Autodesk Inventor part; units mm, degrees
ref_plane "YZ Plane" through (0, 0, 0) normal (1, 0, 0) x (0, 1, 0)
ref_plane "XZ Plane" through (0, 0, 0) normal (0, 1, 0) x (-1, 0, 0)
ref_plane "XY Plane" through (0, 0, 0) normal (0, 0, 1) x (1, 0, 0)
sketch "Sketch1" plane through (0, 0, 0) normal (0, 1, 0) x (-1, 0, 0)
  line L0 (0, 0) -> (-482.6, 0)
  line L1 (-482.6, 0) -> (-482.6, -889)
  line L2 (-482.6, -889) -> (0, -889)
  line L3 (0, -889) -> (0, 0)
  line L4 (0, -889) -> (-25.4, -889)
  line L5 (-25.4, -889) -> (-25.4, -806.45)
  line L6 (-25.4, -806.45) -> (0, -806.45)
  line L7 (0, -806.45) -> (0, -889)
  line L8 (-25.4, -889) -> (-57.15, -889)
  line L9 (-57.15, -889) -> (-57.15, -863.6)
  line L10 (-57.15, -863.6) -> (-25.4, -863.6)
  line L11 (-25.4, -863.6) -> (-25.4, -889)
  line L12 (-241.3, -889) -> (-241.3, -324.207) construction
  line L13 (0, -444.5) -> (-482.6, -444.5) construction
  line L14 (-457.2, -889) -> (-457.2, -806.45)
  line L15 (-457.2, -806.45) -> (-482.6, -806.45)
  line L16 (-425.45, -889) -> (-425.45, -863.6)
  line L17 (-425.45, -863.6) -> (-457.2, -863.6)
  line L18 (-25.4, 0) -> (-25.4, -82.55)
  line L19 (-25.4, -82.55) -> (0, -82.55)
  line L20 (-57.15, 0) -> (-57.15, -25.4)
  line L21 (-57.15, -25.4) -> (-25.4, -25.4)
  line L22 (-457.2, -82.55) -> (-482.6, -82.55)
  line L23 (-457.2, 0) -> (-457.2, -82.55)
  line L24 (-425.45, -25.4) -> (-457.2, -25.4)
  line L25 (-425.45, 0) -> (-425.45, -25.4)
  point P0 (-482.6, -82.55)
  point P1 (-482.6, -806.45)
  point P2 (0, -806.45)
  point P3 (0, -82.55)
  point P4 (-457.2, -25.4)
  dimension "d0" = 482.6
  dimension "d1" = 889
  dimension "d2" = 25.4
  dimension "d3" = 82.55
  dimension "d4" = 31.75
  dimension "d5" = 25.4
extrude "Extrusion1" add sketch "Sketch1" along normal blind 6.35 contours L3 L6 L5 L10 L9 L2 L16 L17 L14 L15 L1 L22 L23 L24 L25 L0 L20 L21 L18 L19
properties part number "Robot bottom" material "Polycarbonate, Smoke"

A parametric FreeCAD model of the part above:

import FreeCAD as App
import Part
import Sketcher
Q = App.Units.Quantity


def add_polygon(sketch, points):
    """Adds a closed chain of lines whose ends are joined by coincident constraints."""
    first, n = sketch.GeometryCount, len(points)
    for a, b in zip(points, points[1:] + points[:1]):
        sketch.addGeometry(Part.LineSegment(App.Vector(*a, 0), App.Vector(*b, 0)), False)
    for i in range(n):
        sketch.addConstraint(Sketcher.Constraint("Coincident", first + i, 2, first + (i + 1) % n, 1))

doc = App.newDocument("Part")
params = doc.addObject("Spreadsheet::Sheet", "Params")
for row, (alias, value) in enumerate([
    ("sketch1_width", "1 in"),
    ("sketch1_width2", "1.25 in"),
    ("pad1_length", "0.25 in"),
], start=1):
    params.set(f"A{row}", alias)
    params.set(f"B{row}", "=" + value)
    params.setAlias(f"B{row}", alias)

body = doc.addObject("PartDesign::Body", "Body")

# Sketch on XZ plane
sketch1 = body.newObject("Sketcher::SketchObject", "Sketch")
sketch1.AttachmentSupport = (doc.getObject("XZ_Plane"), [""])
sketch1.MapMode = "FlatFace"
add_polygon(sketch1, [(0, -806), (0, -83), (25, -83), (25, -25), (57, -25), (57, 0), (425, 0), (425, -25), (457, -25), (457, -83), (483, -83), (483, -806), (457, -806), (457, -864), (425, -864), (425, -889), (57, -889), (57, -864), (25, -864), (25, -806)])  # lines 0-19
sketch1.addConstraint([
    Sketcher.Constraint("Vertical", 0),
    Sketcher.Constraint("Horizontal", 1),
    Sketcher.Constraint("Vertical", 2),
    Sketcher.Constraint("Horizontal", 3),
    Sketcher.Constraint("Vertical", 4),
    Sketcher.Constraint("Horizontal", 5),
    Sketcher.Constraint("Vertical", 6),
    Sketcher.Constraint("Horizontal", 7),
    Sketcher.Constraint("Vertical", 8),
    Sketcher.Constraint("Horizontal", 9),
    Sketcher.Constraint("Vertical", 10),
    Sketcher.Constraint("Horizontal", 11),
    Sketcher.Constraint("Vertical", 12),
    Sketcher.Constraint("Horizontal", 13),
    Sketcher.Constraint("Vertical", 14),
    Sketcher.Constraint("Horizontal", 15),
    Sketcher.Constraint("Vertical", 16),
    Sketcher.Constraint("Horizontal", 17),
    Sketcher.Constraint("Vertical", 18),
    Sketcher.Constraint("Horizontal", 19),
    Sketcher.Constraint("PointOnObject", 0, 2, -2),
    Sketcher.Constraint("PointOnObject", 4, 2, -1),
    Sketcher.Constraint("Horizontal", 3, 2, 6, 2),
    Sketcher.Constraint("Horizontal", 1, 2, 8, 2),
    Sketcher.Constraint("Horizontal", 13, 2, 16, 2),
    Sketcher.Constraint("Horizontal", 11, 2, 18, 2),
    Sketcher.Constraint("Vertical", 8, 2, 11, 2),
    Sketcher.Constraint("Vertical", 6, 2, 13, 2),
    Sketcher.Constraint("Vertical", 4, 2, 15, 2),
    Sketcher.Constraint("Vertical", 2, 2, 17, 2),
    Sketcher.Constraint("Equal", 3, 7),
    Sketcher.Constraint("Equal", 1, 9),
    Sketcher.Constraint("Equal", 19, 4),
    Sketcher.Constraint("Equal", 8, 12),
    Sketcher.Constraint("Equal", 6, 14),
    Sketcher.Constraint("DistanceX", 1, 1, 1, 2, Q("1 in")),
    Sketcher.Constraint("DistanceX", -1, 1, 9, 2, Q("19 in")),
    Sketcher.Constraint("DistanceY", 14, 2, -1, 1, Q("35 in")),
    Sketcher.Constraint("DistanceX", 3, 1, 3, 2, Q("1.25 in")),
    Sketcher.Constraint("DistanceY", 0, 2, -1, 1, Q("3.25 in")),
])
sketch1.setExpression("Constraints[55]", "Params.sketch1_width")
sketch1.setExpression("Constraints[58]", "Params.sketch1_width2")
pad1 = body.newObject("PartDesign::Pad", "Pad")
pad1.Profile = sketch1
pad1.setExpression("Length", "Params.pad1_length")
pad1.Reversed = True

doc.recompute()
